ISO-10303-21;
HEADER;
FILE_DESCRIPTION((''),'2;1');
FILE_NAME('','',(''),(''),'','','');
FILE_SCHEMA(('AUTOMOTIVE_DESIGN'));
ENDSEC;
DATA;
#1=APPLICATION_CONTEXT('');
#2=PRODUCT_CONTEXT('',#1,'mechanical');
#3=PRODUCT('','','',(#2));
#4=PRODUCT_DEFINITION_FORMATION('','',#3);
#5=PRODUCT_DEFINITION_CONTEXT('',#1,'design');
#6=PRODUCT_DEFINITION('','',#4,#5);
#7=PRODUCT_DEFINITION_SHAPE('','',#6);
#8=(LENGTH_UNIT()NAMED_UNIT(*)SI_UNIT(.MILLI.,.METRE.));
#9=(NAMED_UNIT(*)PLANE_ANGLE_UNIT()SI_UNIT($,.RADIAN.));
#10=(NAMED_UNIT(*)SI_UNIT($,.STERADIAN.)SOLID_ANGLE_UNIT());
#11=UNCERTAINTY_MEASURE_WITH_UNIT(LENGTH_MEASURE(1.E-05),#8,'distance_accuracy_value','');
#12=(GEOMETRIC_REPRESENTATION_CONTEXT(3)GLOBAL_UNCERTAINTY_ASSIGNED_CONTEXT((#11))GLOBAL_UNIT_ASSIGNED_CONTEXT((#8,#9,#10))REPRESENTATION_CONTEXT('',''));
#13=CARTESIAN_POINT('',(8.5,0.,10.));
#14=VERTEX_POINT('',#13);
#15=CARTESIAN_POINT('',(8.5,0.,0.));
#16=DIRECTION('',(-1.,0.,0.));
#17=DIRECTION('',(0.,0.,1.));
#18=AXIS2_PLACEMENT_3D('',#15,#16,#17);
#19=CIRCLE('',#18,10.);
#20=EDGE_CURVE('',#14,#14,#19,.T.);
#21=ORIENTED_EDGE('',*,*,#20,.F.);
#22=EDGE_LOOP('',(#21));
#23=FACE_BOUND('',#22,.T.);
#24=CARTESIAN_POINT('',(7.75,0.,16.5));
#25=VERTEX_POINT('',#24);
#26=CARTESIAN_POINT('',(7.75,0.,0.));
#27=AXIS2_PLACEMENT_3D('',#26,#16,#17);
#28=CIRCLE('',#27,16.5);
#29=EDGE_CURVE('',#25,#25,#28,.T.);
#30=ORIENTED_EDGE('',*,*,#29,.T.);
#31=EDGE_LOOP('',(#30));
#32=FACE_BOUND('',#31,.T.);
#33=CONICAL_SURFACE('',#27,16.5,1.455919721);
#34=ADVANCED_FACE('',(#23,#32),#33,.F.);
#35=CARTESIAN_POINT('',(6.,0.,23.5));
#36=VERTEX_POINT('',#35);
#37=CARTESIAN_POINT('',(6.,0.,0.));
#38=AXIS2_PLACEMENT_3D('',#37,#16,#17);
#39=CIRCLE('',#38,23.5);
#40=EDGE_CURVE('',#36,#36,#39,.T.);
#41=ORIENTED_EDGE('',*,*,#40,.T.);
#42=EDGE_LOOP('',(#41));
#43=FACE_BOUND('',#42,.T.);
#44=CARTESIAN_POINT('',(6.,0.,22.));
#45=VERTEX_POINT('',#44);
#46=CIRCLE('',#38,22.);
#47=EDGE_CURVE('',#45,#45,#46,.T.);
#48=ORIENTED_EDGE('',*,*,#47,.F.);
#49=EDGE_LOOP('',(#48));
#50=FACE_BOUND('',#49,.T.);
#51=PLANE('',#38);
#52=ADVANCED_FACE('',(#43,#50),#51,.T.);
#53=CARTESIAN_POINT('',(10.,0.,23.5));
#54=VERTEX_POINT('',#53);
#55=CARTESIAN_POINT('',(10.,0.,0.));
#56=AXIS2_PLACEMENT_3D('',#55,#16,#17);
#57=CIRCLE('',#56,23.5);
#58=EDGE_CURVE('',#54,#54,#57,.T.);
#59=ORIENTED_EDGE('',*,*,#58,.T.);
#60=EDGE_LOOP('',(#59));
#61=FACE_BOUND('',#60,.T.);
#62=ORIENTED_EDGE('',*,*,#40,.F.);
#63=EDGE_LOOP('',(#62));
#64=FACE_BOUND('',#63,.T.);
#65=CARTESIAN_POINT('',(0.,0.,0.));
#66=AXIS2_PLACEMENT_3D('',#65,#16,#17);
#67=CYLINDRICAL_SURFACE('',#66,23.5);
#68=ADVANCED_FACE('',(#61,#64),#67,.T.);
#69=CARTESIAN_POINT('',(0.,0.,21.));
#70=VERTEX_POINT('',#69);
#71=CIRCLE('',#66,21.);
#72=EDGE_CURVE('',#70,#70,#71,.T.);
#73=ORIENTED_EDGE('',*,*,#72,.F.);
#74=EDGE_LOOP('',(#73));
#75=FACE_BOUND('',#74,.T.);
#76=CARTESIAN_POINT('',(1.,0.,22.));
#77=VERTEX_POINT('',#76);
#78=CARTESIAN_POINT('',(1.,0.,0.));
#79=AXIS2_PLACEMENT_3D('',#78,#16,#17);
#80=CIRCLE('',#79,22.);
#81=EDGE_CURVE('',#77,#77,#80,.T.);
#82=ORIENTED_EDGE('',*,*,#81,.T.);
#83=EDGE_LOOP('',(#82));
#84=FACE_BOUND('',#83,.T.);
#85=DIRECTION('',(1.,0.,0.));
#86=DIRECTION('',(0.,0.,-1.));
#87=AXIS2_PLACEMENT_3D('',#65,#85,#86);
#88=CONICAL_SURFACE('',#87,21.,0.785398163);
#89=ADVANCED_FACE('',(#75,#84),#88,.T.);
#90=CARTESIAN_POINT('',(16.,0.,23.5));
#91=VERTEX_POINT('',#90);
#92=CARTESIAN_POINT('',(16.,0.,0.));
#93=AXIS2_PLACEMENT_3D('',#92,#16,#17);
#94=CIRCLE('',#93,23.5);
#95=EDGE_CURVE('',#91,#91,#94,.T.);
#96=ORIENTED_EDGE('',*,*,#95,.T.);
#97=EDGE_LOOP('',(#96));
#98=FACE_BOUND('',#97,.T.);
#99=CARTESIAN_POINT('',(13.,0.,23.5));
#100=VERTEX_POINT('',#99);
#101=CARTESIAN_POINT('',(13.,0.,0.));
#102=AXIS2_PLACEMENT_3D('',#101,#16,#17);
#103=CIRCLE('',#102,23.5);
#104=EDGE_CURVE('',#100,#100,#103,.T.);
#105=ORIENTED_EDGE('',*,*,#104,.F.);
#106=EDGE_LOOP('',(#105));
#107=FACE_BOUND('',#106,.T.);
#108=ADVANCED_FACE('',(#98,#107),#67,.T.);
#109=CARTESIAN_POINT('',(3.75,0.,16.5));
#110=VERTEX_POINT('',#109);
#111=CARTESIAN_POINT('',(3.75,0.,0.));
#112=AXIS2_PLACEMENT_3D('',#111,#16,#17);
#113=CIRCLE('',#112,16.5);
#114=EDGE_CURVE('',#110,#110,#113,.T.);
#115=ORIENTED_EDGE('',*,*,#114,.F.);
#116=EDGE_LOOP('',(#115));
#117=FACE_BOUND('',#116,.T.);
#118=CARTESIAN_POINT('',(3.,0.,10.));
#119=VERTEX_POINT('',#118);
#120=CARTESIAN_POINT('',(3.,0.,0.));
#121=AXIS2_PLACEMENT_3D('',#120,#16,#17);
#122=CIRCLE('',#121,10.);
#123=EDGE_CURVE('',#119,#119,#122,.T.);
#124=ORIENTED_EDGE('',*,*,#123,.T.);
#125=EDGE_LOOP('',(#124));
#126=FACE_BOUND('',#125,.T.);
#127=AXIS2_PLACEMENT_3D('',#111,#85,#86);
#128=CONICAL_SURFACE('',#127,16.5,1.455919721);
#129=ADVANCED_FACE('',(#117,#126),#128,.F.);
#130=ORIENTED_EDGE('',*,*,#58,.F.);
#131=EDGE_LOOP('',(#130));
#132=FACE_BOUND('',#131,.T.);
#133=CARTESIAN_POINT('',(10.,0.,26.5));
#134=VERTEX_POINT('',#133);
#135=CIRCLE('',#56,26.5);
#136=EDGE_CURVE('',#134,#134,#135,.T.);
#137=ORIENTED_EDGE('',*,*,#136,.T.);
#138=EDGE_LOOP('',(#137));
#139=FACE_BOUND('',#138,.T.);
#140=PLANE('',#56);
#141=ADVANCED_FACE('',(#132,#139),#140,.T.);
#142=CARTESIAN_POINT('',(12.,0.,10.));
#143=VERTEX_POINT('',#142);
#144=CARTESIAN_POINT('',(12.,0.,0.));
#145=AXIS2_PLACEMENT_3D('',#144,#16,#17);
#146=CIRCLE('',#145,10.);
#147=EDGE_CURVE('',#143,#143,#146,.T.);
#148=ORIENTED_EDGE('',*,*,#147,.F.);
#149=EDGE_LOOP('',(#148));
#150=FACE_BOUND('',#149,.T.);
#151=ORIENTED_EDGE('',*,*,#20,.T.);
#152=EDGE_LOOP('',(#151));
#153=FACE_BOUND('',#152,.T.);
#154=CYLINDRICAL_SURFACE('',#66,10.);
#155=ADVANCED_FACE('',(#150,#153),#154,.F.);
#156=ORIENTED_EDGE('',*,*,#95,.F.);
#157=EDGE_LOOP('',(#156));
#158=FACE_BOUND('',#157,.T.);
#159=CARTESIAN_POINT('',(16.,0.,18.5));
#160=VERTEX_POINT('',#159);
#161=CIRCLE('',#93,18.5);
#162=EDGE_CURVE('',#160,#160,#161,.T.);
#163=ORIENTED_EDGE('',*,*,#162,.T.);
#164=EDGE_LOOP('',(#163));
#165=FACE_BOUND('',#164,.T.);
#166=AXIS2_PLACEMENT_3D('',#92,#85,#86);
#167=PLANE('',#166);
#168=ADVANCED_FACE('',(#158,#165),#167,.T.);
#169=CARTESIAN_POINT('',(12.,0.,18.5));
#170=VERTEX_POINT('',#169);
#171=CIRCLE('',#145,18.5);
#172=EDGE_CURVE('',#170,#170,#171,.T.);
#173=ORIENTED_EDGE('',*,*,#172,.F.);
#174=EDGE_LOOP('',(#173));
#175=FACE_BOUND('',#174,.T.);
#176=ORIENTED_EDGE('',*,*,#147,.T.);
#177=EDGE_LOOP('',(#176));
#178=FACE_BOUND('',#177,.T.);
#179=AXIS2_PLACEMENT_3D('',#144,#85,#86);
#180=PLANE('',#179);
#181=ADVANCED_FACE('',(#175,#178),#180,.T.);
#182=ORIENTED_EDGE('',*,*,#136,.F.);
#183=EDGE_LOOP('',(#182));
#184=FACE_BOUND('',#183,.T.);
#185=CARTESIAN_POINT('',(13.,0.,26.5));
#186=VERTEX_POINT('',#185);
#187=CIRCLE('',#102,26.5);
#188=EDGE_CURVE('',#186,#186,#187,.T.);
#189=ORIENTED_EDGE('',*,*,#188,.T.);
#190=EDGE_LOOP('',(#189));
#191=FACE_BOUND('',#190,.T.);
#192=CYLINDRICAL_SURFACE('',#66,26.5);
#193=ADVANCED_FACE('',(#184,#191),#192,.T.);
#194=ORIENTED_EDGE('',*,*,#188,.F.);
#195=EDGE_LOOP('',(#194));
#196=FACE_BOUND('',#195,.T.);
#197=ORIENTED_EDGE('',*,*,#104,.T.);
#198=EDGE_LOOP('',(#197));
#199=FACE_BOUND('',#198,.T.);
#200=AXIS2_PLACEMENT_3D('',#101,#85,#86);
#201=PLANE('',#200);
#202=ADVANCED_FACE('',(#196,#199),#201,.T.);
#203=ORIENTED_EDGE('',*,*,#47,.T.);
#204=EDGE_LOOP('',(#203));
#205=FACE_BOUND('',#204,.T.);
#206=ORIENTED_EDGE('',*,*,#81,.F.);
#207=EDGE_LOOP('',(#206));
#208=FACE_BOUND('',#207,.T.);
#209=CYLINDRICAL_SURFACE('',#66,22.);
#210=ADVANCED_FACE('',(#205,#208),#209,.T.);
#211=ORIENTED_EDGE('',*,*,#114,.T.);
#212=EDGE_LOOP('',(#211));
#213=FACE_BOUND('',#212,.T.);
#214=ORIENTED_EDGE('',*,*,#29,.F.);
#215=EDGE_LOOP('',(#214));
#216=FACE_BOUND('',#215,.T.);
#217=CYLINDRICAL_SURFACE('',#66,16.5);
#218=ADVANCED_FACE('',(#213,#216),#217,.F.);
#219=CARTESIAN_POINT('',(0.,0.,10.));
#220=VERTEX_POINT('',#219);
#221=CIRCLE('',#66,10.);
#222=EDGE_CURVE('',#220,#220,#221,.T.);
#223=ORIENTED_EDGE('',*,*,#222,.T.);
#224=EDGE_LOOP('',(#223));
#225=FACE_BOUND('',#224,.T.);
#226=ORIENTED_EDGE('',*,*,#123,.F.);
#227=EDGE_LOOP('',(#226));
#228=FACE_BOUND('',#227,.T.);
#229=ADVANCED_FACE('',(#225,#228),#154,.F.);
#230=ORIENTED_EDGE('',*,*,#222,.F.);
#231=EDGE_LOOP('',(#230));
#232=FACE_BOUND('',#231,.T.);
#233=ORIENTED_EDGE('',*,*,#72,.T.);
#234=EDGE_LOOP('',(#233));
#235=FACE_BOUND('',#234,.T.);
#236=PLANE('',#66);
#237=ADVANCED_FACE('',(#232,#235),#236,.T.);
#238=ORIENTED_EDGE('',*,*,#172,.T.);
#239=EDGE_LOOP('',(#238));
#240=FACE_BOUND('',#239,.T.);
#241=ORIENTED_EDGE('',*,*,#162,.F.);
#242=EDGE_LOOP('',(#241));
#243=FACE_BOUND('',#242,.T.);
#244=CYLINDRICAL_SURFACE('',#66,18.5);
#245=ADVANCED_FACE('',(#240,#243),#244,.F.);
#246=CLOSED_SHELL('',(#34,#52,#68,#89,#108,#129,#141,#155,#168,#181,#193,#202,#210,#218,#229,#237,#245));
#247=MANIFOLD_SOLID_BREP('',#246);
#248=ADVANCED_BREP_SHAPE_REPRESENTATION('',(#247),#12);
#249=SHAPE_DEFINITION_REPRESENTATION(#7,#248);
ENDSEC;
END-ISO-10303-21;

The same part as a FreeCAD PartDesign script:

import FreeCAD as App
import Part
import Sketcher

V = App.Vector
Q = App.Units.Quantity


def add_polygon(sketch, points):
    """Adds a closed chain of lines whose ends are joined by coincident constraints."""
    first, n = sketch.GeometryCount, len(points)
    for a, b in zip(points, points[1:] + points[:1]):
        sketch.addGeometry(Part.LineSegment(App.Vector(*a, 0), App.Vector(*b, 0)), False)
    for i in range(n):
        sketch.addConstraint(Sketcher.Constraint("Coincident", first + i, 2, first + (i + 1) % n, 1))

doc = App.newDocument("Part")
body = doc.addObject("PartDesign::Body", "Body")

# Sketch on XY plane
sketch1 = body.newObject("Sketcher::SketchObject", "Sketch")
sketch1.AttachmentSupport = (doc.getObject("XY_Plane"), [""])
sketch1.MapMode = "FlatFace"
add_polygon(sketch1, [(1, 22), (0, 21), (0, 10), (3, 10), (3.75, 16.5), (7.75, 16.5), (8.5, 10), (12, 10), (12, 18.5), (16, 18.5), (16, 23.5), (13, 23.5), (13, 26.5), (10, 26.5), (10, 23.5), (6, 23.5), (6, 22)])  # lines 0-16
sketch1.addConstraint([
    Sketcher.Constraint("Vertical", 1),
    Sketcher.Constraint("Horizontal", 2),
    Sketcher.Constraint("Horizontal", 4),
    Sketcher.Constraint("Horizontal", 6),
    Sketcher.Constraint("Vertical", 7),
    Sketcher.Constraint("Horizontal", 8),
    Sketcher.Constraint("Vertical", 9),
    Sketcher.Constraint("Horizontal", 10),
    Sketcher.Constraint("Vertical", 11),
    Sketcher.Constraint("Horizontal", 12),
    Sketcher.Constraint("Vertical", 13),
    Sketcher.Constraint("Horizontal", 14),
    Sketcher.Constraint("Vertical", 15),
    Sketcher.Constraint("Horizontal", 16),
    Sketcher.Constraint("PointOnObject", 0, 2, -2),
    Sketcher.Constraint("Horizontal", 2, 2, 5, 2),
    Sketcher.Constraint("Horizontal", 10, 2, 13, 2),
    Sketcher.Constraint("Equal", 4, 8),
    Sketcher.Constraint("Equal", 2, 10),
    Sketcher.Constraint("Equal", 10, 12),
    Sketcher.Constraint("Equal", 8, 14),
    Sketcher.Constraint("Equal", 16, 9),
    Sketcher.Constraint("Equal", 12, 11),
    Sketcher.Constraint("Equal", 3, 5),
    Sketcher.Constraint("DistanceX", 2, 1, 2, 2, Q("3 mm")),
    Sketcher.Constraint("DistanceX", 4, 1, 4, 2, Q("4 mm")),
    Sketcher.Constraint("DistanceX", 16, 2, 16, 1, Q("5 mm")),
    Sketcher.Constraint("DistanceY", 1, 2, 1, 1, Q("11 mm")),
    Sketcher.Constraint("Angle", 0, Q("-135 deg")),
    Sketcher.Constraint("DistanceX", 6, 1, 6, 2, Q("3.5 mm")),
    Sketcher.Constraint("DistanceY", 7, 1, 7, 2, Q("8.5 mm")),
    Sketcher.Constraint("DistanceY", 15, 2, 15, 1, Q("1.5 mm")),
    Sketcher.Constraint("DistanceY", -1, 1, 0, 2, Q("21 mm")),
    Sketcher.Constraint("DistanceY", 4, 2, 7, 2, Q("2 mm")),
])
revolution = body.newObject("PartDesign::Revolution", "Revolution")
revolution.Profile = sketch1
revolution.ReferenceAxis = (sketch1, ["H_Axis"])
revolution.Angle = 360

doc.recompute()
